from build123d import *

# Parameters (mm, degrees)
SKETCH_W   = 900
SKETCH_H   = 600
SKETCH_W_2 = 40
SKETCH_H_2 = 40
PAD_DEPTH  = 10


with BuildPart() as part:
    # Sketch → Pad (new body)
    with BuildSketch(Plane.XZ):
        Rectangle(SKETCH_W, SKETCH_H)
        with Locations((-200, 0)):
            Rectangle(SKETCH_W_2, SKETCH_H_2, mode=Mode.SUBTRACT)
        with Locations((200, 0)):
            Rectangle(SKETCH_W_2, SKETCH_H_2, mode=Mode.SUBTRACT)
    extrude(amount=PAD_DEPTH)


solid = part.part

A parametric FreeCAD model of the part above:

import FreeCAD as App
import Part
import Sketcher
from FreeCAD import Vector

doc = App.newDocument("Part")
body = doc.addObject("PartDesign::Body", "Body")

# Sketch on XZ plane
sketch1 = body.newObject("Sketcher::SketchObject", "Sketch")
sketch1.AttachmentSupport = (doc.getObject("XZ_Plane"), [""])
sketch1.MapMode = "FlatFace"
sketch1.addGeometry(Part.LineSegment(Vector(-450, 300, 0), Vector(-450, -300, 0)), False)
sketch1.addGeometry(Part.LineSegment(Vector(-450, -300, 0), Vector(450, -300, 0)), False)
sketch1.addGeometry(Part.LineSegment(Vector(450, -300, 0), Vector(450, 300, 0)), False)
sketch1.addGeometry(Part.LineSegment(Vector(450, 300, 0), Vector(-450, 300, 0)), False)
sketch1.addGeometry(Part.LineSegment(Vector(-180, -20, 0), Vector(-220, -20, 0)), False)
sketch1.addGeometry(Part.LineSegment(Vector(-220, -20, 0), Vector(-220, 20, 0)), False)
sketch1.addGeometry(Part.LineSegment(Vector(-220, 20, 0), Vector(-180, 20, 0)), False)
sketch1.addGeometry(Part.LineSegment(Vector(-180, 20, 0), Vector(-180, -20, 0)), False)
sketch1.addGeometry(Part.LineSegment(Vector(220, -20, 0), Vector(180, -20, 0)), False)
sketch1.addGeometry(Part.LineSegment(Vector(180, -20, 0), Vector(180, 20, 0)), False)
sketch1.addGeometry(Part.LineSegment(Vector(180, 20, 0), Vector(220, 20, 0)), False)
sketch1.addGeometry(Part.LineSegment(Vector(220, 20, 0), Vector(220, -20, 0)), False)
sketch1.addConstraint(Sketcher.Constraint("Coincident", 0, 2, 1, 1))
sketch1.addConstraint(Sketcher.Constraint("Coincident", 1, 2, 2, 1))
sketch1.addConstraint(Sketcher.Constraint("Coincident", 2, 2, 3, 1))
sketch1.addConstraint(Sketcher.Constraint("Coincident", 3, 2, 0, 1))
sketch1.addConstraint(Sketcher.Constraint("Coincident", 4, 2, 5, 1))
sketch1.addConstraint(Sketcher.Constraint("Coincident", 5, 2, 6, 1))
sketch1.addConstraint(Sketcher.Constraint("Coincident", 6, 2, 7, 1))
sketch1.addConstraint(Sketcher.Constraint("Coincident", 7, 2, 4, 1))
sketch1.addConstraint(Sketcher.Constraint("Coincident", 8, 2, 9, 1))
sketch1.addConstraint(Sketcher.Constraint("Coincident", 9, 2, 10, 1))
sketch1.addConstraint(Sketcher.Constraint("Coincident", 10, 2, 11, 1))
sketch1.addConstraint(Sketcher.Constraint("Coincident", 11, 2, 8, 1))
sketch1.addConstraint(Sketcher.Constraint("Vertical", 0))
sketch1.addConstraint(Sketcher.Constraint("Horizontal", 1))
sketch1.addConstraint(Sketcher.Constraint("Vertical", 2))
sketch1.addConstraint(Sketcher.Constraint("Horizontal", 3))
sketch1.addConstraint(Sketcher.Constraint("Horizontal", 4))
sketch1.addConstraint(Sketcher.Constraint("Vertical", 5))
sketch1.addConstraint(Sketcher.Constraint("Horizontal", 6))
sketch1.addConstraint(Sketcher.Constraint("Vertical", 7))
sketch1.addConstraint(Sketcher.Constraint("Horizontal", 8))
sketch1.addConstraint(Sketcher.Constraint("Vertical", 9))
sketch1.addConstraint(Sketcher.Constraint("Horizontal", 10))
sketch1.addConstraint(Sketcher.Constraint("Vertical", 11))
sketch1.addConstraint(Sketcher.Constraint("Symmetric", 0, 2, 2, 2, -1, 1))
sketch1.addConstraint(Sketcher.Constraint("Symmetric", 6, 2, 8, 2, -1, 1))
sketch1.addConstraint(Sketcher.Constraint("Symmetric", 4, 2, 10, 2, -1, 1))
sketch1.addConstraint(Sketcher.Constraint("Horizontal", 7, 2, 8, 2))
sketch1.addConstraint(Sketcher.Constraint("Equal", 10, 5))
sketch1.addConstraint(Sketcher.Constraint("DistanceX", 1, 1, 1, 2, 900.0))
sketch1.addConstraint(Sketcher.Constraint("DistanceX", 4, 2, 4, 1, 40.0))
sketch1.addConstraint(Sketcher.Constraint("DistanceY", 0, 2, 0, 1, 600.0))
sketch1.addConstraint(Sketcher.Constraint("DistanceX", 4, 2, -1, 1, 220.0))
pad1 = body.newObject("PartDesign::Pad", "Pad")
pad1.Profile = sketch1
pad1.Length = 10

doc.recompute()
